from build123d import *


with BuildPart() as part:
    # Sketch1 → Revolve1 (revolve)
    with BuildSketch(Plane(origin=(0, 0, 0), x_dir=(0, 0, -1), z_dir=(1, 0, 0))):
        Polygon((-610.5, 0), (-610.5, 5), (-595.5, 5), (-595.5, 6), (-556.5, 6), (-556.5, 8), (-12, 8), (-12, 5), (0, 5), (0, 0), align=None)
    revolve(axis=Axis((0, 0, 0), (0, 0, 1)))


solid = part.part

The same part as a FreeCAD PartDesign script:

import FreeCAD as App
import Part
import Sketcher
Q = App.Units.Quantity

doc = App.newDocument("Part")
body = doc.addObject("PartDesign::Body", "Body")

# Sketch on YZ plane
sketch1 = body.newObject("Sketcher::SketchObject", "Sketch")
sketch1.AttachmentSupport = (doc.getObject("YZ_Plane"), [""])
sketch1.MapMode = "FlatFace"
sketch1.addGeometry(Part.LineSegment(App.Vector(5, 610.5, 0), App.Vector(0, 610.5, 0)), False)
sketch1.addGeometry(Part.LineSegment(App.Vector(0, 610.5, 0), App.Vector(0, 0, 0)), False)
sketch1.addGeometry(Part.LineSegment(App.Vector(0, 0, 0), App.Vector(5, 0, 0)), False)
sketch1.addGeometry(Part.LineSegment(App.Vector(5, 0, 0), App.Vector(5, 12, 0)), False)
sketch1.addGeometry(Part.LineSegment(App.Vector(5, 12, 0), App.Vector(8, 12, 0)), False)
sketch1.addGeometry(Part.LineSegment(App.Vector(8, 12, 0), App.Vector(8, 556.5, 0)), False)
sketch1.addGeometry(Part.LineSegment(App.Vector(8, 556.5, 0), App.Vector(6, 556.5, 0)), False)
sketch1.addGeometry(Part.LineSegment(App.Vector(6, 556.5, 0), App.Vector(6, 595.5, 0)), False)
sketch1.addGeometry(Part.LineSegment(App.Vector(6, 595.5, 0), App.Vector(5, 595.5, 0)), False)
sketch1.addGeometry(Part.LineSegment(App.Vector(5, 595.5, 0), App.Vector(5, 610.5, 0)), False)
sketch1.addConstraint(Sketcher.Constraint("Coincident", 0, 2, 1, 1))
sketch1.addConstraint(Sketcher.Constraint("Coincident", 1, 2, 2, 1))
sketch1.addConstraint(Sketcher.Constraint("Coincident", 2, 2, 3, 1))
sketch1.addConstraint(Sketcher.Constraint("Coincident", 3, 2, 4, 1))
sketch1.addConstraint(Sketcher.Constraint("Coincident", 4, 2, 5, 1))
sketch1.addConstraint(Sketcher.Constraint("Coincident", 5, 2, 6, 1))
sketch1.addConstraint(Sketcher.Constraint("Coincident", 6, 2, 7, 1))
sketch1.addConstraint(Sketcher.Constraint("Coincident", 7, 2, 8, 1))
sketch1.addConstraint(Sketcher.Constraint("Coincident", 8, 2, 9, 1))
sketch1.addConstraint(Sketcher.Constraint("Coincident", 9, 2, 0, 1))
sketch1.addConstraint(Sketcher.Constraint("Horizontal", 0))
sketch1.addConstraint(Sketcher.Constraint("Vertical", 1))
sketch1.addConstraint(Sketcher.Constraint("Horizontal", 2))
sketch1.addConstraint(Sketcher.Constraint("Vertical", 3))
sketch1.addConstraint(Sketcher.Constraint("Horizontal", 4))
sketch1.addConstraint(Sketcher.Constraint("Vertical", 5))
sketch1.addConstraint(Sketcher.Constraint("Horizontal", 6))
sketch1.addConstraint(Sketcher.Constraint("Vertical", 7))
sketch1.addConstraint(Sketcher.Constraint("Horizontal", 8))
sketch1.addConstraint(Sketcher.Constraint("Vertical", 9))
sketch1.addConstraint(Sketcher.Constraint("Coincident", 1, 2, -1, 1))
sketch1.addConstraint(Sketcher.Constraint("Vertical", 3, 2, 8, 2))
sketch1.addConstraint(Sketcher.Constraint("DistanceX", 0, 2, 0, 1, Q("5 mm")))
sketch1.addConstraint(Sketcher.Constraint("DistanceX", 4, 1, 4, 2, Q("3 mm")))
sketch1.addConstraint(Sketcher.Constraint("DistanceX", 6, 2, 6, 1, Q("2 mm")))
sketch1.addConstraint(Sketcher.Constraint("DistanceY", 3, 1, 3, 2, Q("12 mm")))
sketch1.addConstraint(Sketcher.Constraint("DistanceY", 7, 1, 7, 2, Q("39 mm")))
sketch1.addConstraint(Sketcher.Constraint("DistanceY", 9, 1, 9, 2, Q("15 mm")))
sketch1.addConstraint(Sketcher.Constraint("DistanceY", 1, 2, 1, 1, Q("610.5 mm")))
revolution = body.newObject("PartDesign::Revolution", "Revolution")
revolution.Profile = sketch1
revolution.ReferenceAxis = (sketch1, ["V_Axis"])
revolution.Angle = 360

doc.recompute()
